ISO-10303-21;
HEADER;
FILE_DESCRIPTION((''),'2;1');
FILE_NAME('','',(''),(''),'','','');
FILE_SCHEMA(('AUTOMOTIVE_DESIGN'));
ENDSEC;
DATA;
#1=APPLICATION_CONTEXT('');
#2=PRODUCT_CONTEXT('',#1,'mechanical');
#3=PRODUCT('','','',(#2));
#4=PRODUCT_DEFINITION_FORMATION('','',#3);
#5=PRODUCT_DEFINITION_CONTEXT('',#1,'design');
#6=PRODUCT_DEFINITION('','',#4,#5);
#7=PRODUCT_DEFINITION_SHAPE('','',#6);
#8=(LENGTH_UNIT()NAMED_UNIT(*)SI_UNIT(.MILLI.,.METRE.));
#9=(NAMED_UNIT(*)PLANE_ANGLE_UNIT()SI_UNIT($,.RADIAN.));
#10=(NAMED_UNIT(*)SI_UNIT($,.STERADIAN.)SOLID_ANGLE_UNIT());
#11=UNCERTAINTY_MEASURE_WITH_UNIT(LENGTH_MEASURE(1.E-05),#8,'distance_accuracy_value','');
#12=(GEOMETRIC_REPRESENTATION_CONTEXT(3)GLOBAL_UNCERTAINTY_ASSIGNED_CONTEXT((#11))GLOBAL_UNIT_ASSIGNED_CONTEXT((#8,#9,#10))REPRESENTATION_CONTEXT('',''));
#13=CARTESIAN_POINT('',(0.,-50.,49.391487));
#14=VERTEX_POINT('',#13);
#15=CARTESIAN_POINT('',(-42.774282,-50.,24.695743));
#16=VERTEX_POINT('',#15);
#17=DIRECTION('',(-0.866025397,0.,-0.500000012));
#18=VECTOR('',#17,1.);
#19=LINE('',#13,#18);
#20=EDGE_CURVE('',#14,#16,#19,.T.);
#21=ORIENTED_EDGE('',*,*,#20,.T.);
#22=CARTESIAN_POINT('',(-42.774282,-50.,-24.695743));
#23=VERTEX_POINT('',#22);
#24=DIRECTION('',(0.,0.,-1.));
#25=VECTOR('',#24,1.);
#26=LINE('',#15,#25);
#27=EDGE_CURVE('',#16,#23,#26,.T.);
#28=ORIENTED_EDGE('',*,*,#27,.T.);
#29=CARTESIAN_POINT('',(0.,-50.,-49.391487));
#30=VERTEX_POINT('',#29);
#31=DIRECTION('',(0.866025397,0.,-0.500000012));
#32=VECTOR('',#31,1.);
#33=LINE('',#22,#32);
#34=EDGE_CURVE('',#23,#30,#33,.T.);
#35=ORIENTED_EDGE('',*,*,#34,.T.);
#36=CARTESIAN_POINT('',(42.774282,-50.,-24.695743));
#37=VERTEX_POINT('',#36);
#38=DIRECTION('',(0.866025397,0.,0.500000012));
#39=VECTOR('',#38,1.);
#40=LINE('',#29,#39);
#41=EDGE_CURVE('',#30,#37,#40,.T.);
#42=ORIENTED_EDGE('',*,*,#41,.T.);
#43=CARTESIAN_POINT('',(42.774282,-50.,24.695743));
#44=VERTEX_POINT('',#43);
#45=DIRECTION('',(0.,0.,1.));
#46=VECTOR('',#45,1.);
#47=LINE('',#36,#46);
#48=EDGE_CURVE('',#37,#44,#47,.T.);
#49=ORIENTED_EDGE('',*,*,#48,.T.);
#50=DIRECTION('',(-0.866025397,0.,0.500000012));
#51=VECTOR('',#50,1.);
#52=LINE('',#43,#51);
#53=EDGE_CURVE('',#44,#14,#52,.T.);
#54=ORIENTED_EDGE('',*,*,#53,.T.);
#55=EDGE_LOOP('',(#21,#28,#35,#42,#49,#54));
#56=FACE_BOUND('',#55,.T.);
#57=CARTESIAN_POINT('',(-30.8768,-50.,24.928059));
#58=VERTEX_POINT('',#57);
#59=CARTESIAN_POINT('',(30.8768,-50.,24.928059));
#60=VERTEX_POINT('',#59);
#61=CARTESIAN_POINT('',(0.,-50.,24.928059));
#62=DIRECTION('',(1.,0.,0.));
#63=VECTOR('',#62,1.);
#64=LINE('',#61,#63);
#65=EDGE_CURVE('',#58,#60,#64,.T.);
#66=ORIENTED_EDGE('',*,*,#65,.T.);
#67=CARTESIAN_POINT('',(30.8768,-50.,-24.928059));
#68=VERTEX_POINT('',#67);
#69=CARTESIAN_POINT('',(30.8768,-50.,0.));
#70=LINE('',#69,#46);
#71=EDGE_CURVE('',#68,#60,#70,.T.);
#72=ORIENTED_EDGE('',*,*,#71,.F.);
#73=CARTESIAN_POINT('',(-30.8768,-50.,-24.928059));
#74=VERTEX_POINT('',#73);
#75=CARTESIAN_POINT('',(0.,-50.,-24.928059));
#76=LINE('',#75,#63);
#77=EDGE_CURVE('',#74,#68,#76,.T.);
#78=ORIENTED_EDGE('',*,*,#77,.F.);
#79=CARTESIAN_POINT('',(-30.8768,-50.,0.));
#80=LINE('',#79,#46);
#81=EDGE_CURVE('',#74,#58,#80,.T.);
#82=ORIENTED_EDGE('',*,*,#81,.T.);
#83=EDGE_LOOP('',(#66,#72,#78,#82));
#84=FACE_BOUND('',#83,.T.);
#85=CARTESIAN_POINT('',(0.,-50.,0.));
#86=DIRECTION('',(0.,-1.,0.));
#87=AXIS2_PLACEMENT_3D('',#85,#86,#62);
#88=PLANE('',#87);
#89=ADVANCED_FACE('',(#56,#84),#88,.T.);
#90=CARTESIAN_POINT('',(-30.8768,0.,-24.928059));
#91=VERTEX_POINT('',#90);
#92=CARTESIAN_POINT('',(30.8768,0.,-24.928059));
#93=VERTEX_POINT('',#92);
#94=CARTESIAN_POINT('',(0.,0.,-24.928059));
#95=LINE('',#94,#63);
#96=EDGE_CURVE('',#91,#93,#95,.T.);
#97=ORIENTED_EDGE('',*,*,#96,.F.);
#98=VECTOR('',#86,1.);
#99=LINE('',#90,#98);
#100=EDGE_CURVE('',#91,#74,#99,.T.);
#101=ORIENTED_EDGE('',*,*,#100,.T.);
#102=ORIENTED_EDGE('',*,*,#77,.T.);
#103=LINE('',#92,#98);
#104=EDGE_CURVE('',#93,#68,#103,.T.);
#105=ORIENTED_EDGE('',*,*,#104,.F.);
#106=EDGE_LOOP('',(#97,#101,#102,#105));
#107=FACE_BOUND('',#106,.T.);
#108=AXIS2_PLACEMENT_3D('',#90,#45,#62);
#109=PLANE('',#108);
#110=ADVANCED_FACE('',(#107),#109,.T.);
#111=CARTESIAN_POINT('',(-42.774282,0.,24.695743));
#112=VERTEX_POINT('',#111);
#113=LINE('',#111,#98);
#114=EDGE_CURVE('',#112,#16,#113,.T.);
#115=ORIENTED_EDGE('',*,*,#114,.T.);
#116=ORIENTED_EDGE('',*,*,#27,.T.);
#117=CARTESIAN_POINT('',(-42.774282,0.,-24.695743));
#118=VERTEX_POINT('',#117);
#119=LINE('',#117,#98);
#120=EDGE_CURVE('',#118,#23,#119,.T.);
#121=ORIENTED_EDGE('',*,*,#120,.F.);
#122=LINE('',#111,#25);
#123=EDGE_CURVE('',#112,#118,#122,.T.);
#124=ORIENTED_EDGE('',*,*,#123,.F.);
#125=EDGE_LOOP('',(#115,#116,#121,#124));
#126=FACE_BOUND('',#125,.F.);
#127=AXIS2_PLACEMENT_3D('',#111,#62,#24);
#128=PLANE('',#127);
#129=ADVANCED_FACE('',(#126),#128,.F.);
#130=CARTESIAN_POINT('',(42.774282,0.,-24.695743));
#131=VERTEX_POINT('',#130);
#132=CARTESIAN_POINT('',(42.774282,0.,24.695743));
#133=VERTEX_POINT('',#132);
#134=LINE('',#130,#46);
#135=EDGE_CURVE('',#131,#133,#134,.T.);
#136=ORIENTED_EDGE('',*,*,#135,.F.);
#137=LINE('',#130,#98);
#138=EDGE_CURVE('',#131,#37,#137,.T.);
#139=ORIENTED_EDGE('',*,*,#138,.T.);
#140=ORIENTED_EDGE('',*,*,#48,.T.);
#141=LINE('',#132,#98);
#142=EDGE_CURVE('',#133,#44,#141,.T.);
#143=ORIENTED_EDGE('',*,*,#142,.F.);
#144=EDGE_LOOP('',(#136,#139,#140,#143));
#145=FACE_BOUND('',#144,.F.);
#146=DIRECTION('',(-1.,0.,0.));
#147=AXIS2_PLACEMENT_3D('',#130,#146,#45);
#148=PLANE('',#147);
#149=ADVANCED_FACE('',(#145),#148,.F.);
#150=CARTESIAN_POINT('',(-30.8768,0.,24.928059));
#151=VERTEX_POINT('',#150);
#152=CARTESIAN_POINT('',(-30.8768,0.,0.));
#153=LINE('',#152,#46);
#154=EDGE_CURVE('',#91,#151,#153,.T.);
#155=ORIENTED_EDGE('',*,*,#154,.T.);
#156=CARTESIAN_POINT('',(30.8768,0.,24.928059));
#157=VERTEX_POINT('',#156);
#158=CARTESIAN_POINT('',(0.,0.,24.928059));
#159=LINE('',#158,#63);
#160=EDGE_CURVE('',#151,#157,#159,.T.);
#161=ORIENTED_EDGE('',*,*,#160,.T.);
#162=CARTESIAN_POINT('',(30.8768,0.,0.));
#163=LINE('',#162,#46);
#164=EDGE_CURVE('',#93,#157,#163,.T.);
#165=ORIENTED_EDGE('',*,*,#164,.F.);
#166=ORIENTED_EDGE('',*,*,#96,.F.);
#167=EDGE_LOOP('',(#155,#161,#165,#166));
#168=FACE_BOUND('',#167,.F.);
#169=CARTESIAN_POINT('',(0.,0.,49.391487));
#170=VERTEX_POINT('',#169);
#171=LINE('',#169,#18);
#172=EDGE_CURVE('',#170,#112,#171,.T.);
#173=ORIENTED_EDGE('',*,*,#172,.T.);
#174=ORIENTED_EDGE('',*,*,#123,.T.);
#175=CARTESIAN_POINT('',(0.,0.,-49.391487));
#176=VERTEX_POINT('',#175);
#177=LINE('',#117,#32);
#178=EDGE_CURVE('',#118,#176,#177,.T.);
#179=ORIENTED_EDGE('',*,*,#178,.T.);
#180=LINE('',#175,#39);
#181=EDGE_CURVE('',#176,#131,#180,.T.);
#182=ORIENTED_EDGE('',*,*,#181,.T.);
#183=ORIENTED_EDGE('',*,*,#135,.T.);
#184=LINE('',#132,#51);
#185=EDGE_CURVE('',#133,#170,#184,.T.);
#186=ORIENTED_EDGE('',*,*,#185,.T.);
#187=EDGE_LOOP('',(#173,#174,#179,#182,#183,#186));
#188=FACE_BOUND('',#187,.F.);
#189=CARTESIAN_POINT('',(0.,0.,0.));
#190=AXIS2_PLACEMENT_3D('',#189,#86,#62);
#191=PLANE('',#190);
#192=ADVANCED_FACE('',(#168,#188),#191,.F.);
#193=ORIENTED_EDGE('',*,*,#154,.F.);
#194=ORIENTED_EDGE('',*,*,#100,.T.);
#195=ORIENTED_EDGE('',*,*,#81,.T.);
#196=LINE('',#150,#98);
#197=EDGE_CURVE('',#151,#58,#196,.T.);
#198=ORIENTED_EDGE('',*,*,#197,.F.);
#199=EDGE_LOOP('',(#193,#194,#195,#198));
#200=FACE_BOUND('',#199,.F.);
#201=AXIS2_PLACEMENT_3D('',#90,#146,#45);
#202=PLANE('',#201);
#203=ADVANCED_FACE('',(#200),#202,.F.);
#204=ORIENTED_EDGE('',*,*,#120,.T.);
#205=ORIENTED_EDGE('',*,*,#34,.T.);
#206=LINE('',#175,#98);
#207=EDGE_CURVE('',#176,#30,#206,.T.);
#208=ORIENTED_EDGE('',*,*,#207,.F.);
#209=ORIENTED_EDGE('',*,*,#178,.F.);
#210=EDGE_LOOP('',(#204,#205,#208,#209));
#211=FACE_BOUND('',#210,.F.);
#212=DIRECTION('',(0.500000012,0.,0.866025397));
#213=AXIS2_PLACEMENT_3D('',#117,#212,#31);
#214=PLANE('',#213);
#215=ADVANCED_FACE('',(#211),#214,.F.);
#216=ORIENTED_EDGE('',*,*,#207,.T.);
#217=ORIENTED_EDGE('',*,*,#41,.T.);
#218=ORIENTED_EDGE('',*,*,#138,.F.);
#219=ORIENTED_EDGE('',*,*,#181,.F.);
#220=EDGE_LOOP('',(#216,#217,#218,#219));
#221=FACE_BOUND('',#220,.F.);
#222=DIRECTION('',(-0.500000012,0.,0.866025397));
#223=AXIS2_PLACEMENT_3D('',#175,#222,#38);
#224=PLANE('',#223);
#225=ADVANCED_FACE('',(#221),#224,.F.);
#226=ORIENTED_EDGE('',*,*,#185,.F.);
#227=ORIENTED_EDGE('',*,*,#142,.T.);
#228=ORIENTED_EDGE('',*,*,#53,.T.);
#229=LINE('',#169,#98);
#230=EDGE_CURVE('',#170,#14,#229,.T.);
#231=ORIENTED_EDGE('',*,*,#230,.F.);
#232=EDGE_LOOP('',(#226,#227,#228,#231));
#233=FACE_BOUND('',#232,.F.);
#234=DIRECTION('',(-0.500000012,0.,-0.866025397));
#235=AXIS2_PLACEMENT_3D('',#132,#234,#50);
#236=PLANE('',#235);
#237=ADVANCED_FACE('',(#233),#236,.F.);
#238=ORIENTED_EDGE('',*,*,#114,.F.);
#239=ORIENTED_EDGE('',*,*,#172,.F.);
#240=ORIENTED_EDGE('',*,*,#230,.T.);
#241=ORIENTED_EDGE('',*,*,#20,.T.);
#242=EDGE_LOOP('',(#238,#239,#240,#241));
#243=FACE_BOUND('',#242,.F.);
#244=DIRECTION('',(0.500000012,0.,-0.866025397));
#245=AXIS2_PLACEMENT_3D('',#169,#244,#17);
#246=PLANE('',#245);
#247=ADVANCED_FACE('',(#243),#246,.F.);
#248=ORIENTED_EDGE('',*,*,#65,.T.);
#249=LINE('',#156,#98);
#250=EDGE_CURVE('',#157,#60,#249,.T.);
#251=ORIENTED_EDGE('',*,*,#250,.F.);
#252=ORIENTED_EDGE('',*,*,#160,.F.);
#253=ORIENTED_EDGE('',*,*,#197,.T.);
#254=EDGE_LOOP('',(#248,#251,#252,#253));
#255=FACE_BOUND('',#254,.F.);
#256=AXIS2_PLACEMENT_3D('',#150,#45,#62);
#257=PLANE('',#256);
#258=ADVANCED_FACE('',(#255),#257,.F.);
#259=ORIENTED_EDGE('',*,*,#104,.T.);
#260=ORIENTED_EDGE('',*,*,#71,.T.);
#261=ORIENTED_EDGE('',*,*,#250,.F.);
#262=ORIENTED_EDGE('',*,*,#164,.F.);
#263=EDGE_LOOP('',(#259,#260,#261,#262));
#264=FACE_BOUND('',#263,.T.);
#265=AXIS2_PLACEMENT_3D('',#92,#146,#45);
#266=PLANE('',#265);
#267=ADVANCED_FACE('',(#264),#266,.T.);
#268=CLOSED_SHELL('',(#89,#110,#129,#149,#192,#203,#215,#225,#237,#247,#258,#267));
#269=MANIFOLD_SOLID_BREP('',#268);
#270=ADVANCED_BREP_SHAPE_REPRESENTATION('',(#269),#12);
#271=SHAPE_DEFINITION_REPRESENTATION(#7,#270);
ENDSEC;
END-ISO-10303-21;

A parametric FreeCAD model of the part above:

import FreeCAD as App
import Part
import Sketcher
from FreeCAD import Vector
Q = App.Units.Quantity

doc = App.newDocument("Part")
body = doc.addObject("PartDesign::Body", "Body")

sketch1 = body.newObject("Sketcher::SketchObject", "Sketch")
sketch1.AttachmentSupport = (doc.getObject("XZ_Plane"), [""])
sketch1.MapMode = "FlatFace"
sketch1.addGeometry([
    Part.LineSegment(Vector(-43, 25, 0), Vector(-43, -25, 0)),
    Part.LineSegment(Vector(-43, -25, 0), Vector(0, -49, 0)),
    Part.LineSegment(Vector(0, -49, 0), Vector(43, -25, 0)),
    Part.LineSegment(Vector(43, -25, 0), Vector(43, 25, 0)),
    Part.LineSegment(Vector(43, 25, 0), Vector(0, 49, 0)),
    Part.LineSegment(Vector(0, 49, 0), Vector(-43, 25, 0)),
    Part.LineSegment(Vector(31, -25, 0), Vector(-31, -25, 0)),
    Part.LineSegment(Vector(-31, -25, 0), Vector(-31, 25, 0)),
    Part.LineSegment(Vector(-31, 25, 0), Vector(31, 25, 0)),
    Part.LineSegment(Vector(31, 25, 0), Vector(31, -25, 0)),
], False)
sketch1.addConstraint([
    Sketcher.Constraint("Coincident", 0, 2, 1, 1),
    Sketcher.Constraint("Coincident", 1, 2, 2, 1),
    Sketcher.Constraint("Coincident", 2, 2, 3, 1),
    Sketcher.Constraint("Coincident", 3, 2, 4, 1),
    Sketcher.Constraint("Coincident", 4, 2, 5, 1),
    Sketcher.Constraint("Coincident", 5, 2, 0, 1),
    Sketcher.Constraint("Coincident", 6, 2, 7, 1),
    Sketcher.Constraint("Coincident", 7, 2, 8, 1),
    Sketcher.Constraint("Coincident", 8, 2, 9, 1),
    Sketcher.Constraint("Coincident", 9, 2, 6, 1),
    Sketcher.Constraint("Vertical", 0),
    Sketcher.Constraint("Vertical", 3),
    Sketcher.Constraint("Horizontal", 6),
    Sketcher.Constraint("Vertical", 7),
    Sketcher.Constraint("Horizontal", 8),
    Sketcher.Constraint("Vertical", 9),
    Sketcher.Constraint("Symmetric", 0, 2, 3, 2, -1, 1),
    Sketcher.Constraint("Symmetric", 1, 2, 4, 2, -1, 1),
    Sketcher.Constraint("Symmetric", 6, 2, 8, 2, -1, 1),
    Sketcher.Constraint("PointOnObject", 1, 2, -2),
    Sketcher.Constraint("Parallel", 2, 5),
    Sketcher.Constraint("Horizontal", 0, 2, 2, 2),
    Sketcher.Constraint("Angle", 1, Q("-30.000001 deg")),
    Sketcher.Constraint("DistanceX", 6, 2, 6, 1, 61.7536),
    Sketcher.Constraint("DistanceY", 7, 1, 7, 2, 49.856118),
    Sketcher.Constraint("DistanceY", 6, 2, 5, 2, 49.623802),
    Sketcher.Constraint("DistanceY", 1, 2, 3, 2, 74.08723),
])
pad1 = body.newObject("PartDesign::Pad", "Pad")
pad1.Profile = sketch1
pad1.Length = 50

doc.recompute()
